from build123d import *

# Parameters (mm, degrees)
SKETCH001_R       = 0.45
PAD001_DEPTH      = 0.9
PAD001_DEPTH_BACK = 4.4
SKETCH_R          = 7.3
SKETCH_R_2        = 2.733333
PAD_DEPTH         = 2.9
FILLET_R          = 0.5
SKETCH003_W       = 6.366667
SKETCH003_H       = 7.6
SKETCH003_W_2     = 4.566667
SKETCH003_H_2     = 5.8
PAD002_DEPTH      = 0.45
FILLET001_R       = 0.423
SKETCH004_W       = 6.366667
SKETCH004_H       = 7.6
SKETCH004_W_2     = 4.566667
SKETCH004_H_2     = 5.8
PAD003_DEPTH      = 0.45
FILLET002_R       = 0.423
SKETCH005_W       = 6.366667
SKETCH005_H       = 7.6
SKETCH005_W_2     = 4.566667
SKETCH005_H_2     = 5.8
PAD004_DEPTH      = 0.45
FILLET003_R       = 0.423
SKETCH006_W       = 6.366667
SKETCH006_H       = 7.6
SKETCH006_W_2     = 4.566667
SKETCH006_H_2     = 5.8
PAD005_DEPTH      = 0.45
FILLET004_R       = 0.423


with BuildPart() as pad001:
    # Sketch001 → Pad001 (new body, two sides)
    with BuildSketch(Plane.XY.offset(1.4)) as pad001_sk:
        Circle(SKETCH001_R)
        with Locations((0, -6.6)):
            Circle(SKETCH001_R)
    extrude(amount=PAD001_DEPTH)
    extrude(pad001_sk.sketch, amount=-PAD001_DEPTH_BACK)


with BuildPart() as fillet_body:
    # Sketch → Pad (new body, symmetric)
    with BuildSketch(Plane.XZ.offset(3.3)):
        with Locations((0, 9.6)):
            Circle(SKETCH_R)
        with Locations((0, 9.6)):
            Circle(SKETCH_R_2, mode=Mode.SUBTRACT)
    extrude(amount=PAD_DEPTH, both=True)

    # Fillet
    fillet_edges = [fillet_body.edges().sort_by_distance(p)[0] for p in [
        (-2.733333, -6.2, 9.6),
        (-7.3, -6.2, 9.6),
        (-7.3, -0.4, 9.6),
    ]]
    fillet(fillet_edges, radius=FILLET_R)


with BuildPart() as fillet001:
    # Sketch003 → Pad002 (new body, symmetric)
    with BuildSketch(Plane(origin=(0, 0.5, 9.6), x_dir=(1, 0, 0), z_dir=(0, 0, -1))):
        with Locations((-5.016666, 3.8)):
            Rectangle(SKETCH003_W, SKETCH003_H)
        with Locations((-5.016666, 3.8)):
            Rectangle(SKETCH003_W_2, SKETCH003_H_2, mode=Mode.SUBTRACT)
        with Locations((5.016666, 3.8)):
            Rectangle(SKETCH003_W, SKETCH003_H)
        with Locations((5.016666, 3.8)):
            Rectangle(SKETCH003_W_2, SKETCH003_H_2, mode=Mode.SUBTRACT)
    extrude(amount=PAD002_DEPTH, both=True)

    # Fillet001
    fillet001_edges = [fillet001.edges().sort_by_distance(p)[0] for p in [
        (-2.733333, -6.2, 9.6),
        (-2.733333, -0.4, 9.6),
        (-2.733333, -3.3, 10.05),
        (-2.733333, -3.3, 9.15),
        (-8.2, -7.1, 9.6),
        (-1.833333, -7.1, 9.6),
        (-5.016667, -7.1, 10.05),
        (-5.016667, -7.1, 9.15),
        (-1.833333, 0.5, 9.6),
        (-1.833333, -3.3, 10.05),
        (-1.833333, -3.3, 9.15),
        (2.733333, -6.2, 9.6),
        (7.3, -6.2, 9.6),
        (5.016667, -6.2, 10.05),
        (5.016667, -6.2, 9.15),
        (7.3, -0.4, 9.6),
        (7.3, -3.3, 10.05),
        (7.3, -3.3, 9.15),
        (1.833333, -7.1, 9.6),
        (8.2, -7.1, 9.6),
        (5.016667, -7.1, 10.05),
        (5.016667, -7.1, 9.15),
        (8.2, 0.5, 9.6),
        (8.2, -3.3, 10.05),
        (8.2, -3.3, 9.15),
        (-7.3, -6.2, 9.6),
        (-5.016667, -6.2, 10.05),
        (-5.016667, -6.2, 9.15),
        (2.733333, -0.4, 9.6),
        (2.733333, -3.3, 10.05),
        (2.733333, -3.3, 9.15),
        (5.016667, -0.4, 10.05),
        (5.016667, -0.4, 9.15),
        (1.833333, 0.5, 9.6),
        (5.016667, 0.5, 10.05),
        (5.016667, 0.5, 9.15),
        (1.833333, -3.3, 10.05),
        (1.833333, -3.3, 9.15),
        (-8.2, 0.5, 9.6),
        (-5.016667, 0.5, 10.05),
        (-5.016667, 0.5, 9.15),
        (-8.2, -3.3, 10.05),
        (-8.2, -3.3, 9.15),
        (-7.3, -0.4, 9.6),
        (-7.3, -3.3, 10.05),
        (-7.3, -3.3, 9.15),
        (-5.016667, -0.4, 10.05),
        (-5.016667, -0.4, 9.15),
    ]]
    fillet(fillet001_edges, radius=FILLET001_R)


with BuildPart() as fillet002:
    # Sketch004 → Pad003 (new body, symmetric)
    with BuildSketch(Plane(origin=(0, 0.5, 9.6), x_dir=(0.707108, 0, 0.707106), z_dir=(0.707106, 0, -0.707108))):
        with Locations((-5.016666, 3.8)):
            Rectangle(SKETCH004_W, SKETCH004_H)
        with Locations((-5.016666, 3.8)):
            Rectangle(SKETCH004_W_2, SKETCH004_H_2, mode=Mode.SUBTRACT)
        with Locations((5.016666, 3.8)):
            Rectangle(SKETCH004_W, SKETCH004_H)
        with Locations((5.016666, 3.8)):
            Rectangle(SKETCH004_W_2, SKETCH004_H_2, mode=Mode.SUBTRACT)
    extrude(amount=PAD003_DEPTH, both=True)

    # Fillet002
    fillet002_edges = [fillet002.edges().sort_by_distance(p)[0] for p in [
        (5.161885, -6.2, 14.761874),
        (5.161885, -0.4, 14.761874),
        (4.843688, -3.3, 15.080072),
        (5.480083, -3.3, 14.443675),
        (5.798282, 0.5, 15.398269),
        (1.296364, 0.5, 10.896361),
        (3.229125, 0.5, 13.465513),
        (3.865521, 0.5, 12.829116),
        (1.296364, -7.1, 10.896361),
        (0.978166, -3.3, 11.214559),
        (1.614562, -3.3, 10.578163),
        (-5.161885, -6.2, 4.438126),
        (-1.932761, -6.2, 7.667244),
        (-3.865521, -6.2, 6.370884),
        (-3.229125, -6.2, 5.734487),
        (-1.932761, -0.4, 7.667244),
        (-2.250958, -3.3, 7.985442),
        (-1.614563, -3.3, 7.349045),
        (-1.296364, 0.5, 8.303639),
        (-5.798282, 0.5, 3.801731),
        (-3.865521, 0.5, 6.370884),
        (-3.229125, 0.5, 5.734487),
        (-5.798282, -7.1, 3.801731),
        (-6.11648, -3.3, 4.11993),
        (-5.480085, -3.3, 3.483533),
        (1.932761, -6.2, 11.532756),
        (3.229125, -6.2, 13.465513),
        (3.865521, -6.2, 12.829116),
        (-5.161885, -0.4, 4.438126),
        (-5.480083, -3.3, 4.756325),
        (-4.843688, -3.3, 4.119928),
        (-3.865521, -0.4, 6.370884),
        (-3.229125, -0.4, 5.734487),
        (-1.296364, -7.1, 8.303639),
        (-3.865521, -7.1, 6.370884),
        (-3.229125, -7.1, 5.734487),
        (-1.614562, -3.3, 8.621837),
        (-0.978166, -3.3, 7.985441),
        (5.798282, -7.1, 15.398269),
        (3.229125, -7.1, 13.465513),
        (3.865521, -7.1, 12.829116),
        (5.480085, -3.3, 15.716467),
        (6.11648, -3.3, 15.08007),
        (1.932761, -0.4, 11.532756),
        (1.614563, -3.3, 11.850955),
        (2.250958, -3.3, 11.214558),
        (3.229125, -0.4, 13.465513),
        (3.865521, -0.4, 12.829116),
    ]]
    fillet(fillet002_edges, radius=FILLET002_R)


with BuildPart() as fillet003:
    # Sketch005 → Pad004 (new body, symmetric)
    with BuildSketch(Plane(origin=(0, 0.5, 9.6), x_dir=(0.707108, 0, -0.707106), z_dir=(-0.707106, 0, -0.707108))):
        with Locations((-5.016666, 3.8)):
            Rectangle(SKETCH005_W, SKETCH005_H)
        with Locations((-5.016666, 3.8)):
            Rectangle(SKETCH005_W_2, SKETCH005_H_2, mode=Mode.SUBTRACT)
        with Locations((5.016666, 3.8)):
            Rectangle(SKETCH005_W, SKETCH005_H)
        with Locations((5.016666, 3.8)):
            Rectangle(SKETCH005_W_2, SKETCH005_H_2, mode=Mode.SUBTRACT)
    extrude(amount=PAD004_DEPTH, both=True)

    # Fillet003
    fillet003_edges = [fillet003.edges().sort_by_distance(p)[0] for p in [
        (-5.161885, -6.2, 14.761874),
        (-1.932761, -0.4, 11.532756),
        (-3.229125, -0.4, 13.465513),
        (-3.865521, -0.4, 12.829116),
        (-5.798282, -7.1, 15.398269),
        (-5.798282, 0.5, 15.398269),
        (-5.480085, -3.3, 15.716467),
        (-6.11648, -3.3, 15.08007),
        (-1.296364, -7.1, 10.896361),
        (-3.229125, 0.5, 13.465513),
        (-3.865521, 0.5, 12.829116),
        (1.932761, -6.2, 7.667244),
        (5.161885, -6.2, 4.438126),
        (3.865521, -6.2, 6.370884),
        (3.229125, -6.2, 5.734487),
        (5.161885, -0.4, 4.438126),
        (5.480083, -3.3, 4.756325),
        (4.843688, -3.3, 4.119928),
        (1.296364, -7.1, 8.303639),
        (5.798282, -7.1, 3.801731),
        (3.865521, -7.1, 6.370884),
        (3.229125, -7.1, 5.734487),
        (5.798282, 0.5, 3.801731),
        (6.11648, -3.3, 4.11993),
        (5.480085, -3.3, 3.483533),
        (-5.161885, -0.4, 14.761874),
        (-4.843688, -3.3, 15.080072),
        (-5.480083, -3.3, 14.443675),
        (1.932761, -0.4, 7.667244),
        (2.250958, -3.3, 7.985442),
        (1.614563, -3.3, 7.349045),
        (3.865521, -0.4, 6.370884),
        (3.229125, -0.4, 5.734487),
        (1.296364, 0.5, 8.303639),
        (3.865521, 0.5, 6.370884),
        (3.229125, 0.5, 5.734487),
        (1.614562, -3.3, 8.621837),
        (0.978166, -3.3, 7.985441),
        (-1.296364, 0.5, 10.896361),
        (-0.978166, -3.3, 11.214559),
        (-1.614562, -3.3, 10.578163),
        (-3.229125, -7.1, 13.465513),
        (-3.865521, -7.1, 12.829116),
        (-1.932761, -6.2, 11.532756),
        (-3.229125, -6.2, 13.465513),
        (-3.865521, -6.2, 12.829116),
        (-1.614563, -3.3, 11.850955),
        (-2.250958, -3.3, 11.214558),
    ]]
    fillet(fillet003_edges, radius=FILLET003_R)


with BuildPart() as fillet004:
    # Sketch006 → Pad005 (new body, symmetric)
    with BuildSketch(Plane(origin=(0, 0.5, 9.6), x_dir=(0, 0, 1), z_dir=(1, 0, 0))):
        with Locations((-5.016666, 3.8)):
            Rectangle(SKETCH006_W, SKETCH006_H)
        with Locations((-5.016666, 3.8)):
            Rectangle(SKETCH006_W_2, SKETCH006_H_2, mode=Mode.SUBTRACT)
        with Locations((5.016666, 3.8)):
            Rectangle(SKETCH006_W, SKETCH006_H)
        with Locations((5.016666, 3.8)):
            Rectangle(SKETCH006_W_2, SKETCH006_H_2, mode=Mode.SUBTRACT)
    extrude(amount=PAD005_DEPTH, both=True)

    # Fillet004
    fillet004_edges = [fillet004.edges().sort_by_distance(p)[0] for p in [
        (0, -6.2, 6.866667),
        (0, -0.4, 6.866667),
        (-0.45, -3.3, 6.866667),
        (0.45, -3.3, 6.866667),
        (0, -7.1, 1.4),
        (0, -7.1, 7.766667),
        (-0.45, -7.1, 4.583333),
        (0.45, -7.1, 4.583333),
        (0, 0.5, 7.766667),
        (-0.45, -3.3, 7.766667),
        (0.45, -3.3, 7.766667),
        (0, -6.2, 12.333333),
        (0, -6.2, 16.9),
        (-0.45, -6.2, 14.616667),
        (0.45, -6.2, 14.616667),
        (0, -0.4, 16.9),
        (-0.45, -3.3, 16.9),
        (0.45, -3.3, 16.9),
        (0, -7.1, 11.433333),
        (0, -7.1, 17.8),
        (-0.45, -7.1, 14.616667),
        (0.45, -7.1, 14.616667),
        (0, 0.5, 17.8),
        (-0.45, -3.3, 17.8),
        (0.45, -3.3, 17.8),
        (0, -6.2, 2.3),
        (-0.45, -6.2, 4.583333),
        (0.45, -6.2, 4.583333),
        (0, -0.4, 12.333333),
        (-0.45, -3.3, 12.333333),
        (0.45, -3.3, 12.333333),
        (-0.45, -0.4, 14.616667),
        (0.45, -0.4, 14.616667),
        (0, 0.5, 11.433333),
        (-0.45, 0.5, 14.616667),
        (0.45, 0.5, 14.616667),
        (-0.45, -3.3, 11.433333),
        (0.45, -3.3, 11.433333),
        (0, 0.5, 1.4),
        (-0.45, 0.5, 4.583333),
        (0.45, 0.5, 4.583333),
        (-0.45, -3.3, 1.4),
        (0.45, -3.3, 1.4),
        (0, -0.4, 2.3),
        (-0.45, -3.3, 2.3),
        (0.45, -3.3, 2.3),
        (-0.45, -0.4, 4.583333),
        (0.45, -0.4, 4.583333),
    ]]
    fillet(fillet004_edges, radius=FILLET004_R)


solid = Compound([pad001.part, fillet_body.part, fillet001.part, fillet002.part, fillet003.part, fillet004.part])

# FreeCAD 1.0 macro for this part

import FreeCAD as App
import Part
import Sketcher
from FreeCAD import Vector
Q = App.Units.Quantity


def edges_at(feature, points):
    """Names of the edges that pass closest to the given points."""
    edges = feature.Shape.Edges
    near = lambda p: min(range(len(edges)), key=lambda i: edges[i].distToShape(Part.Vertex(*p))[0])
    return sorted({f"Edge{near(p) + 1}" for p in points})


def add_polygon(sketch, points):
    """Adds a closed chain of lines whose ends are joined by coincident constraints."""
    first, n = sketch.GeometryCount, len(points)
    for a, b in zip(points, points[1:] + points[:1]):
        sketch.addGeometry(Part.LineSegment(App.Vector(*a, 0), App.Vector(*b, 0)), False)
    for i in range(n):
        sketch.addConstraint(Sketcher.Constraint("Coincident", first + i, 2, first + (i + 1) % n, 1))

doc = App.newDocument("Part")
params = doc.addObject("Spreadsheet::Sheet", "Params")
for row, (alias, value) in enumerate([
    ("sketch1_diameter", "0.9 mm"),
    ("pad1_length", "0.9 mm"),
    ("pad1_length2", "4.4 mm"),
    ("sketch2_diameter", "14.6 mm"),
    ("pad2_length", "5.8 mm"),
    ("fillet_radius", "0.5 mm"),
    ("sketch3_height", "7.6 mm"),
    ("sketch3_height2", "5.8 mm"),
    ("pad3_length", "0.9 mm"),
    ("fillet2_radius", "0.423 mm"),
    ("sketch4_height", "7.6 mm"),
    ("sketch4_height2", "5.8 mm"),
    ("pad4_length", "0.9 mm"),
    ("fillet3_radius", "0.423 mm"),
    ("sketch5_height", "7.6 mm"),
    ("sketch5_height2", "5.8 mm"),
    ("pad5_length", "0.9 mm"),
    ("fillet4_radius", "0.423 mm"),
    ("sketch6_width", "7.6 mm"),
    ("sketch6_width2", "5.8 mm"),
    ("pad6_length", "0.9 mm"),
    ("fillet5_radius", "0.423 mm"),
], start=1):
    params.set(f"A{row}", alias)
    params.set(f"B{row}", "=" + value)
    params.setAlias(f"B{row}", alias)

body = doc.addObject("PartDesign::Body", "Body")
body.AllowCompound = True

# Sketch on XY plane
sketch1 = doc.addObject("Sketcher::SketchObject", "Sketch")
body.addObject(sketch1)
sketch1.AttachmentSupport = (doc.XY_Plane, [""])
sketch1.MapMode = "FlatFace"
sketch1.AttachmentOffset = App.Placement(Vector(0, 0, 1.4), App.Rotation())
sketch1.addGeometry([
    Part.Circle(Vector(0, 0, 0), Vector(0, 0, 1), 0.45),
    Part.Circle(Vector(0, -6.6, 0), Vector(0, 0, 1), 0.45),
], False)
sketch1.addConstraint([
    Sketcher.Constraint("Coincident", 0, 3, -1, 1),
    Sketcher.Constraint("Equal", 0, 1),
    Sketcher.Constraint("PointOnObject", 1, 3, -2),
    Sketcher.Constraint("Diameter", 0, Q("0.9 mm")),
    Sketcher.Constraint("DistanceY", 1, 3, -1, 1, Q("6.6 mm")),
])
sketch1.setExpression("Constraints[3]", "Params.sketch1_diameter")
pad1 = doc.addObject("PartDesign::Pad", "Pad")
body.addObject(pad1)
pad1.Profile = sketch1
pad1.Type = "TwoLengths"
pad1.setExpression("Length", "Params.pad1_length")
pad1.setExpression("Length2", "Params.pad1_length2")
body2 = doc.addObject("PartDesign::Body", "Body001")

# Sketch on XZ plane
sketch2 = doc.addObject("Sketcher::SketchObject", "Sketch001")
body2.addObject(sketch2)
sketch2.AttachmentSupport = (doc.getObject("XZ_Plane001"), [""])
sketch2.MapMode = "FlatFace"
sketch2.AttachmentOffset = App.Placement(Vector(0, 0, 3.3), App.Rotation())
sketch2.addGeometry([
    Part.Circle(Vector(0, 9.6, 0), Vector(0, 0, 1), 7.3),
    Part.Circle(Vector(0, 9.6, 0), Vector(0, 0, 1), 2.733333),
], False)
sketch2.addConstraint([
    Sketcher.Constraint("Coincident", 1, 3, 0, 3),
    Sketcher.Constraint("PointOnObject", 0, 3, -2),
    Sketcher.Constraint("Diameter", 0, Q("14.6 mm")),
    Sketcher.Constraint("DistanceY", -1, 1, 0, 3, Q("9.6 mm")),
    Sketcher.Constraint("Diameter", 1, Q("5.466666 mm")),
])
sketch2.setExpression("Constraints[2]", "Params.sketch2_diameter")
pad2 = doc.addObject("PartDesign::Pad", "Pad001")
body2.addObject(pad2)
pad2.Profile = sketch2
pad2.setExpression("Length", "Params.pad2_length")
pad2.Midplane = True
doc.recompute()

fillet = doc.addObject("PartDesign::Fillet", "Fillet")
body2.addObject(fillet)
fillet.Base = (pad2, edges_at(pad2, [(-2.733, -6.2, 9.6), (-7.3, -6.2, 9.6), (-7.3, -0.4, 9.6)]))
fillet.setExpression("Radius", "Params.fillet_radius")
body3 = doc.addObject("PartDesign::Body", "Body002")
body3.AllowCompound = True

# Sketch on XY plane
sketch3 = doc.addObject("Sketcher::SketchObject", "Sketch002")
body3.addObject(sketch3)
sketch3.AttachmentSupport = (doc.getObject("XY_Plane002"), [""])
sketch3.MapMode = "FlatFace"
sketch3.AttachmentOffset = App.Placement(Vector(0, 0, 9.6), App.Rotation())
add_polygon(sketch3, [(-8.2, -7.1), (-8.2, 0.5), (-1.833333, 0.5), (-1.833333, -7.1)])  # lines 0-3
add_polygon(sketch3, [(-2.733332, -0.4), (-7.3, -0.4), (-7.3, -6.2), (-2.733332, -6.2)])  # lines 4-7
add_polygon(sketch3, [(1.833333, -7.1), (1.833333, 0.5), (8.2, 0.5), (8.2, -7.1)])  # lines 8-11
add_polygon(sketch3, [(7.3, -0.4), (2.733332, -0.4), (2.733332, -6.2), (7.3, -6.2)])  # lines 12-15
sketch3.addConstraint([
    Sketcher.Constraint("Vertical", 0),
    Sketcher.Constraint("Horizontal", 1),
    Sketcher.Constraint("Vertical", 2),
    Sketcher.Constraint("Horizontal", 3),
    Sketcher.Constraint("Horizontal", 4),
    Sketcher.Constraint("Vertical", 5),
    Sketcher.Constraint("Horizontal", 6),
    Sketcher.Constraint("Vertical", 7),
    Sketcher.Constraint("Vertical", 8),
    Sketcher.Constraint("Horizontal", 9),
    Sketcher.Constraint("Vertical", 10),
    Sketcher.Constraint("Horizontal", 11),
    Sketcher.Constraint("Horizontal", 12),
    Sketcher.Constraint("Vertical", 13),
    Sketcher.Constraint("Horizontal", 14),
    Sketcher.Constraint("Vertical", 15),
    Sketcher.Constraint("Symmetric", 1, 2, 8, 2, -2),
    Sketcher.Constraint("Symmetric", 3, 2, 10, 2, -2),
    Sketcher.Constraint("Symmetric", 7, 2, 12, 2, -2),
    Sketcher.Constraint("Symmetric", 5, 2, 14, 2, -2),
    Sketcher.Constraint("DistanceY", 0, 1, 0, 2, Q("7.6 mm")),
    Sketcher.Constraint("DistanceY", 5, 2, 5, 1, Q("5.8 mm")),
    Sketcher.Constraint("DistanceX", 0, 2, -1, 1, Q("8.2 mm")),
    Sketcher.Constraint("DistanceY", -1, 1, 0, 2, Q("0.5 mm")),
    Sketcher.Constraint("DistanceX", 4, 2, -1, 1, Q("7.3 mm")),
    Sketcher.Constraint("DistanceY", 4, 2, -1, 1, Q("0.4 mm")),
    Sketcher.Constraint("DistanceX", 6, 2, 2, 2, Q("0.9 mm")),
    Sketcher.Constraint("DistanceX", 1, 1, 1, 2, Q("6.366667 mm")),
])
sketch3.setExpression("Constraints[36]", "Params.sketch3_height")
sketch3.setExpression("Constraints[37]", "Params.sketch3_height2")
pad3 = doc.addObject("PartDesign::Pad", "Pad002")
body3.addObject(pad3)
pad3.Profile = sketch3
pad3.setExpression("Length", "Params.pad3_length")
pad3.Midplane = True
doc.recompute()

fillet2 = doc.addObject("PartDesign::Fillet", "Fillet001")
body3.addObject(fillet2)
fillet2.Base = (pad3, ["Edge1"])
fillet2.UseAllEdges = True
fillet2.setExpression("Radius", "Params.fillet2_radius")
body4 = doc.addObject("PartDesign::Body", "Body003")
body4.AllowCompound = True

# Sketch on an angled plane
sketch4 = doc.addObject("Sketcher::SketchObject", "Sketch003")
body4.addObject(sketch4)
sketch4.Placement = App.Placement(Vector(0, 0.5, 9.6), App.Rotation(Vector(0.707107781, 0, 0.707105781), Vector(0, -0.999999999, 0), Vector(0.707105781, 0, -0.707107781), "ZXY"))
add_polygon(sketch4, [(-8.199999, 7.6), (-8.199999, 0), (-1.833332, 0), (-1.833332, 7.6)])  # lines 0-3
add_polygon(sketch4, [(-2.733332, 0.9), (-7.299999, 0.9), (-7.299999, 6.7), (-2.733332, 6.7)])  # lines 4-7
add_polygon(sketch4, [(1.833332, 7.6), (1.833332, 0), (8.199999, 0), (8.199999, 7.6)])  # lines 8-11
add_polygon(sketch4, [(7.299999, 0.9), (2.733332, 0.9), (2.733332, 6.7), (7.299999, 6.7)])  # lines 12-15
sketch4.addConstraint([
    Sketcher.Constraint("Vertical", 0),
    Sketcher.Constraint("Horizontal", 1),
    Sketcher.Constraint("Vertical", 2),
    Sketcher.Constraint("Horizontal", 3),
    Sketcher.Constraint("Horizontal", 4),
    Sketcher.Constraint("Vertical", 5),
    Sketcher.Constraint("Horizontal", 6),
    Sketcher.Constraint("Vertical", 7),
    Sketcher.Constraint("Vertical", 8),
    Sketcher.Constraint("Horizontal", 9),
    Sketcher.Constraint("Vertical", 10),
    Sketcher.Constraint("Horizontal", 11),
    Sketcher.Constraint("Horizontal", 12),
    Sketcher.Constraint("Vertical", 13),
    Sketcher.Constraint("Horizontal", 14),
    Sketcher.Constraint("Vertical", 15),
    Sketcher.Constraint("Symmetric", 1, 2, 8, 2, -1, 1),
    Sketcher.Constraint("Symmetric", 0, 2, 9, 2, -2),
    Sketcher.Constraint("Symmetric", 7, 2, 12, 2, -2),
    Sketcher.Constraint("Symmetric", 5, 2, 14, 2, -2),
    Sketcher.Constraint("Horizontal", 3, 2, 10, 2),
    Sketcher.Constraint("DistanceY", 0, 2, 0, 1, Q("7.6 mm")),
    Sketcher.Constraint("DistanceY", 5, 1, 5, 2, Q("5.8 mm")),
    Sketcher.Constraint("DistanceX", 0, 2, -1, 1, Q("8.199999 mm")),
    Sketcher.Constraint("DistanceX", 4, 2, -1, 1, Q("7.299999 mm")),
    Sketcher.Constraint("DistanceY", -1, 1, 4, 2, Q("0.9 mm")),
    Sketcher.Constraint("DistanceX", 6, 2, 2, 2, Q("0.9 mm")),
    Sketcher.Constraint("DistanceX", 1, 1, 1, 2, Q("6.366667 mm")),
])
sketch4.setExpression("Constraints[37]", "Params.sketch4_height")
sketch4.setExpression("Constraints[38]", "Params.sketch4_height2")
pad4 = doc.addObject("PartDesign::Pad", "Pad003")
body4.addObject(pad4)
pad4.Profile = sketch4
pad4.setExpression("Length", "Params.pad4_length")
pad4.Midplane = True
doc.recompute()

fillet3 = doc.addObject("PartDesign::Fillet", "Fillet002")
body4.addObject(fillet3)
fillet3.Base = (pad4, ["Edge1"])
fillet3.UseAllEdges = True
fillet3.setExpression("Radius", "Params.fillet3_radius")
body5 = doc.addObject("PartDesign::Body", "Body004")
body5.AllowCompound = True

# Sketch on an angled plane
sketch5 = doc.addObject("Sketcher::SketchObject", "Sketch004")
body5.addObject(sketch5)
sketch5.Placement = App.Placement(Vector(0, 0.5, 9.6), App.Rotation(Vector(0.707107781, 0, -0.707105781), Vector(0, -0.999999999, 0), Vector(-0.707105781, 0, -0.707107781), "ZXY"))
add_polygon(sketch5, [(-8.199999, 7.6), (-8.199999, 0), (-1.833332, 0), (-1.833332, 7.6)])  # lines 0-3
add_polygon(sketch5, [(-2.733332, 0.9), (-7.299999, 0.9), (-7.299999, 6.7), (-2.733332, 6.7)])  # lines 4-7
add_polygon(sketch5, [(1.833332, 7.6), (1.833332, 0), (8.199999, 0), (8.199999, 7.6)])  # lines 8-11
add_polygon(sketch5, [(7.299999, 0.9), (2.733332, 0.9), (2.733332, 6.7), (7.299999, 6.7)])  # lines 12-15
sketch5.addConstraint([
    Sketcher.Constraint("Vertical", 0),
    Sketcher.Constraint("Horizontal", 1),
    Sketcher.Constraint("Vertical", 2),
    Sketcher.Constraint("Horizontal", 3),
    Sketcher.Constraint("Horizontal", 4),
    Sketcher.Constraint("Vertical", 5),
    Sketcher.Constraint("Horizontal", 6),
    Sketcher.Constraint("Vertical", 7),
    Sketcher.Constraint("Vertical", 8),
    Sketcher.Constraint("Horizontal", 9),
    Sketcher.Constraint("Vertical", 10),
    Sketcher.Constraint("Horizontal", 11),
    Sketcher.Constraint("Horizontal", 12),
    Sketcher.Constraint("Vertical", 13),
    Sketcher.Constraint("Horizontal", 14),
    Sketcher.Constraint("Vertical", 15),
    Sketcher.Constraint("Symmetric", 1, 2, 8, 2, -1, 1),
    Sketcher.Constraint("Symmetric", 0, 2, 9, 2, -2),
    Sketcher.Constraint("Symmetric", 7, 2, 12, 2, -2),
    Sketcher.Constraint("Symmetric", 5, 2, 14, 2, -2),
    Sketcher.Constraint("Horizontal", 3, 2, 10, 2),
    Sketcher.Constraint("DistanceY", 0, 2, 0, 1, Q("7.6 mm")),
    Sketcher.Constraint("DistanceY", 5, 1, 5, 2, Q("5.8 mm")),
    Sketcher.Constraint("DistanceX", 0, 2, -1, 1, Q("8.199999 mm")),
    Sketcher.Constraint("DistanceX", 4, 2, -1, 1, Q("7.299999 mm")),
    Sketcher.Constraint("DistanceY", -1, 1, 4, 2, Q("0.9 mm")),
    Sketcher.Constraint("DistanceX", 6, 2, 2, 2, Q("0.9 mm")),
    Sketcher.Constraint("DistanceX", 1, 1, 1, 2, Q("6.366667 mm")),
])
sketch5.setExpression("Constraints[37]", "Params.sketch5_height")
sketch5.setExpression("Constraints[38]", "Params.sketch5_height2")
pad5 = doc.addObject("PartDesign::Pad", "Pad004")
body5.addObject(pad5)
pad5.Profile = sketch5
pad5.setExpression("Length", "Params.pad5_length")
pad5.Midplane = True
doc.recompute()

fillet4 = doc.addObject("PartDesign::Fillet", "Fillet003")
body5.addObject(fillet4)
fillet4.Base = (pad5, ["Edge1"])
fillet4.UseAllEdges = True
fillet4.setExpression("Radius", "Params.fillet4_radius")
body6 = doc.addObject("PartDesign::Body", "Body005")
body6.AllowCompound = True

# Sketch on YZ plane
sketch6 = doc.addObject("Sketcher::SketchObject", "Sketch005")
body6.addObject(sketch6)
sketch6.AttachmentSupport = (doc.getObject("YZ_Plane005"), [""])
sketch6.MapMode = "FlatFace"
add_polygon(sketch6, [(-7.1, 1.4), (0.5, 1.4), (0.5, 7.766667), (-7.1, 7.766667)])  # lines 0-3
add_polygon(sketch6, [(-0.4, 6.866668), (-0.4, 2.3), (-6.2, 2.3), (-6.2, 6.866668)])  # lines 4-7
add_polygon(sketch6, [(-7.1, 11.433333), (0.5, 11.433333), (0.5, 17.799999), (-7.1, 17.799999)])  # lines 8-11
add_polygon(sketch6, [(-0.4, 16.899999), (-0.4, 12.333332), (-6.2, 12.333332), (-6.2, 16.899999)])  # lines 12-15
sketch6.addConstraint([
    Sketcher.Constraint("Horizontal", 0),
    Sketcher.Constraint("Vertical", 1),
    Sketcher.Constraint("Horizontal", 2),
    Sketcher.Constraint("Vertical", 3),
    Sketcher.Constraint("Vertical", 4),
    Sketcher.Constraint("Horizontal", 5),
    Sketcher.Constraint("Vertical", 6),
    Sketcher.Constraint("Horizontal", 7),
    Sketcher.Constraint("Horizontal", 8),
    Sketcher.Constraint("Vertical", 9),
    Sketcher.Constraint("Horizontal", 10),
    Sketcher.Constraint("Vertical", 11),
    Sketcher.Constraint("Vertical", 12),
    Sketcher.Constraint("Horizontal", 13),
    Sketcher.Constraint("Vertical", 14),
    Sketcher.Constraint("Horizontal", 15),
    Sketcher.Constraint("Vertical", 1, 2, 8, 2),
    Sketcher.Constraint("Vertical", 3, 2, 10, 2),
    Sketcher.Constraint("Vertical", 7, 2, 12, 2),
    Sketcher.Constraint("Vertical", 6, 2, 13, 2),
    Sketcher.Constraint("Equal", 3, 9),
    Sketcher.Constraint("Equal", 6, 12),
    Sketcher.Constraint("DistanceX", 0, 1, 0, 2, Q("7.6 mm")),
    Sketcher.Constraint("DistanceX", 5, 2, 5, 1, Q("5.8 mm")),
    Sketcher.Constraint("DistanceX", -1, 1, 0, 2, Q("0.5 mm")),
    Sketcher.Constraint("DistanceY", -1, 1, 0, 2, Q("1.4 mm")),
    Sketcher.Constraint("DistanceX", 4, 2, -1, 1, Q("0.4 mm")),
    Sketcher.Constraint("DistanceY", -1, 1, 4, 2, Q("2.3 mm")),
    Sketcher.Constraint("DistanceY", -1, 1, 9, 2, Q("17.799999 mm")),
    Sketcher.Constraint("DistanceY", -1, 1, 14, 2, Q("16.899999 mm")),
    Sketcher.Constraint("DistanceY", 6, 2, 2, 2, Q("0.9 mm")),
    Sketcher.Constraint("DistanceY", 1, 1, 1, 2, Q("6.366667 mm")),
])
sketch6.setExpression("Constraints[38]", "Params.sketch6_width")
sketch6.setExpression("Constraints[39]", "Params.sketch6_width2")
pad6 = doc.addObject("PartDesign::Pad", "Pad005")
body6.addObject(pad6)
pad6.Profile = sketch6
pad6.setExpression("Length", "Params.pad6_length")
pad6.Midplane = True
doc.recompute()

fillet5 = doc.addObject("PartDesign::Fillet", "Fillet004")
body6.addObject(fillet5)
fillet5.Base = (pad6, ["Edge1"])
fillet5.UseAllEdges = True
fillet5.setExpression("Radius", "Params.fillet5_radius")

doc.recompute()
